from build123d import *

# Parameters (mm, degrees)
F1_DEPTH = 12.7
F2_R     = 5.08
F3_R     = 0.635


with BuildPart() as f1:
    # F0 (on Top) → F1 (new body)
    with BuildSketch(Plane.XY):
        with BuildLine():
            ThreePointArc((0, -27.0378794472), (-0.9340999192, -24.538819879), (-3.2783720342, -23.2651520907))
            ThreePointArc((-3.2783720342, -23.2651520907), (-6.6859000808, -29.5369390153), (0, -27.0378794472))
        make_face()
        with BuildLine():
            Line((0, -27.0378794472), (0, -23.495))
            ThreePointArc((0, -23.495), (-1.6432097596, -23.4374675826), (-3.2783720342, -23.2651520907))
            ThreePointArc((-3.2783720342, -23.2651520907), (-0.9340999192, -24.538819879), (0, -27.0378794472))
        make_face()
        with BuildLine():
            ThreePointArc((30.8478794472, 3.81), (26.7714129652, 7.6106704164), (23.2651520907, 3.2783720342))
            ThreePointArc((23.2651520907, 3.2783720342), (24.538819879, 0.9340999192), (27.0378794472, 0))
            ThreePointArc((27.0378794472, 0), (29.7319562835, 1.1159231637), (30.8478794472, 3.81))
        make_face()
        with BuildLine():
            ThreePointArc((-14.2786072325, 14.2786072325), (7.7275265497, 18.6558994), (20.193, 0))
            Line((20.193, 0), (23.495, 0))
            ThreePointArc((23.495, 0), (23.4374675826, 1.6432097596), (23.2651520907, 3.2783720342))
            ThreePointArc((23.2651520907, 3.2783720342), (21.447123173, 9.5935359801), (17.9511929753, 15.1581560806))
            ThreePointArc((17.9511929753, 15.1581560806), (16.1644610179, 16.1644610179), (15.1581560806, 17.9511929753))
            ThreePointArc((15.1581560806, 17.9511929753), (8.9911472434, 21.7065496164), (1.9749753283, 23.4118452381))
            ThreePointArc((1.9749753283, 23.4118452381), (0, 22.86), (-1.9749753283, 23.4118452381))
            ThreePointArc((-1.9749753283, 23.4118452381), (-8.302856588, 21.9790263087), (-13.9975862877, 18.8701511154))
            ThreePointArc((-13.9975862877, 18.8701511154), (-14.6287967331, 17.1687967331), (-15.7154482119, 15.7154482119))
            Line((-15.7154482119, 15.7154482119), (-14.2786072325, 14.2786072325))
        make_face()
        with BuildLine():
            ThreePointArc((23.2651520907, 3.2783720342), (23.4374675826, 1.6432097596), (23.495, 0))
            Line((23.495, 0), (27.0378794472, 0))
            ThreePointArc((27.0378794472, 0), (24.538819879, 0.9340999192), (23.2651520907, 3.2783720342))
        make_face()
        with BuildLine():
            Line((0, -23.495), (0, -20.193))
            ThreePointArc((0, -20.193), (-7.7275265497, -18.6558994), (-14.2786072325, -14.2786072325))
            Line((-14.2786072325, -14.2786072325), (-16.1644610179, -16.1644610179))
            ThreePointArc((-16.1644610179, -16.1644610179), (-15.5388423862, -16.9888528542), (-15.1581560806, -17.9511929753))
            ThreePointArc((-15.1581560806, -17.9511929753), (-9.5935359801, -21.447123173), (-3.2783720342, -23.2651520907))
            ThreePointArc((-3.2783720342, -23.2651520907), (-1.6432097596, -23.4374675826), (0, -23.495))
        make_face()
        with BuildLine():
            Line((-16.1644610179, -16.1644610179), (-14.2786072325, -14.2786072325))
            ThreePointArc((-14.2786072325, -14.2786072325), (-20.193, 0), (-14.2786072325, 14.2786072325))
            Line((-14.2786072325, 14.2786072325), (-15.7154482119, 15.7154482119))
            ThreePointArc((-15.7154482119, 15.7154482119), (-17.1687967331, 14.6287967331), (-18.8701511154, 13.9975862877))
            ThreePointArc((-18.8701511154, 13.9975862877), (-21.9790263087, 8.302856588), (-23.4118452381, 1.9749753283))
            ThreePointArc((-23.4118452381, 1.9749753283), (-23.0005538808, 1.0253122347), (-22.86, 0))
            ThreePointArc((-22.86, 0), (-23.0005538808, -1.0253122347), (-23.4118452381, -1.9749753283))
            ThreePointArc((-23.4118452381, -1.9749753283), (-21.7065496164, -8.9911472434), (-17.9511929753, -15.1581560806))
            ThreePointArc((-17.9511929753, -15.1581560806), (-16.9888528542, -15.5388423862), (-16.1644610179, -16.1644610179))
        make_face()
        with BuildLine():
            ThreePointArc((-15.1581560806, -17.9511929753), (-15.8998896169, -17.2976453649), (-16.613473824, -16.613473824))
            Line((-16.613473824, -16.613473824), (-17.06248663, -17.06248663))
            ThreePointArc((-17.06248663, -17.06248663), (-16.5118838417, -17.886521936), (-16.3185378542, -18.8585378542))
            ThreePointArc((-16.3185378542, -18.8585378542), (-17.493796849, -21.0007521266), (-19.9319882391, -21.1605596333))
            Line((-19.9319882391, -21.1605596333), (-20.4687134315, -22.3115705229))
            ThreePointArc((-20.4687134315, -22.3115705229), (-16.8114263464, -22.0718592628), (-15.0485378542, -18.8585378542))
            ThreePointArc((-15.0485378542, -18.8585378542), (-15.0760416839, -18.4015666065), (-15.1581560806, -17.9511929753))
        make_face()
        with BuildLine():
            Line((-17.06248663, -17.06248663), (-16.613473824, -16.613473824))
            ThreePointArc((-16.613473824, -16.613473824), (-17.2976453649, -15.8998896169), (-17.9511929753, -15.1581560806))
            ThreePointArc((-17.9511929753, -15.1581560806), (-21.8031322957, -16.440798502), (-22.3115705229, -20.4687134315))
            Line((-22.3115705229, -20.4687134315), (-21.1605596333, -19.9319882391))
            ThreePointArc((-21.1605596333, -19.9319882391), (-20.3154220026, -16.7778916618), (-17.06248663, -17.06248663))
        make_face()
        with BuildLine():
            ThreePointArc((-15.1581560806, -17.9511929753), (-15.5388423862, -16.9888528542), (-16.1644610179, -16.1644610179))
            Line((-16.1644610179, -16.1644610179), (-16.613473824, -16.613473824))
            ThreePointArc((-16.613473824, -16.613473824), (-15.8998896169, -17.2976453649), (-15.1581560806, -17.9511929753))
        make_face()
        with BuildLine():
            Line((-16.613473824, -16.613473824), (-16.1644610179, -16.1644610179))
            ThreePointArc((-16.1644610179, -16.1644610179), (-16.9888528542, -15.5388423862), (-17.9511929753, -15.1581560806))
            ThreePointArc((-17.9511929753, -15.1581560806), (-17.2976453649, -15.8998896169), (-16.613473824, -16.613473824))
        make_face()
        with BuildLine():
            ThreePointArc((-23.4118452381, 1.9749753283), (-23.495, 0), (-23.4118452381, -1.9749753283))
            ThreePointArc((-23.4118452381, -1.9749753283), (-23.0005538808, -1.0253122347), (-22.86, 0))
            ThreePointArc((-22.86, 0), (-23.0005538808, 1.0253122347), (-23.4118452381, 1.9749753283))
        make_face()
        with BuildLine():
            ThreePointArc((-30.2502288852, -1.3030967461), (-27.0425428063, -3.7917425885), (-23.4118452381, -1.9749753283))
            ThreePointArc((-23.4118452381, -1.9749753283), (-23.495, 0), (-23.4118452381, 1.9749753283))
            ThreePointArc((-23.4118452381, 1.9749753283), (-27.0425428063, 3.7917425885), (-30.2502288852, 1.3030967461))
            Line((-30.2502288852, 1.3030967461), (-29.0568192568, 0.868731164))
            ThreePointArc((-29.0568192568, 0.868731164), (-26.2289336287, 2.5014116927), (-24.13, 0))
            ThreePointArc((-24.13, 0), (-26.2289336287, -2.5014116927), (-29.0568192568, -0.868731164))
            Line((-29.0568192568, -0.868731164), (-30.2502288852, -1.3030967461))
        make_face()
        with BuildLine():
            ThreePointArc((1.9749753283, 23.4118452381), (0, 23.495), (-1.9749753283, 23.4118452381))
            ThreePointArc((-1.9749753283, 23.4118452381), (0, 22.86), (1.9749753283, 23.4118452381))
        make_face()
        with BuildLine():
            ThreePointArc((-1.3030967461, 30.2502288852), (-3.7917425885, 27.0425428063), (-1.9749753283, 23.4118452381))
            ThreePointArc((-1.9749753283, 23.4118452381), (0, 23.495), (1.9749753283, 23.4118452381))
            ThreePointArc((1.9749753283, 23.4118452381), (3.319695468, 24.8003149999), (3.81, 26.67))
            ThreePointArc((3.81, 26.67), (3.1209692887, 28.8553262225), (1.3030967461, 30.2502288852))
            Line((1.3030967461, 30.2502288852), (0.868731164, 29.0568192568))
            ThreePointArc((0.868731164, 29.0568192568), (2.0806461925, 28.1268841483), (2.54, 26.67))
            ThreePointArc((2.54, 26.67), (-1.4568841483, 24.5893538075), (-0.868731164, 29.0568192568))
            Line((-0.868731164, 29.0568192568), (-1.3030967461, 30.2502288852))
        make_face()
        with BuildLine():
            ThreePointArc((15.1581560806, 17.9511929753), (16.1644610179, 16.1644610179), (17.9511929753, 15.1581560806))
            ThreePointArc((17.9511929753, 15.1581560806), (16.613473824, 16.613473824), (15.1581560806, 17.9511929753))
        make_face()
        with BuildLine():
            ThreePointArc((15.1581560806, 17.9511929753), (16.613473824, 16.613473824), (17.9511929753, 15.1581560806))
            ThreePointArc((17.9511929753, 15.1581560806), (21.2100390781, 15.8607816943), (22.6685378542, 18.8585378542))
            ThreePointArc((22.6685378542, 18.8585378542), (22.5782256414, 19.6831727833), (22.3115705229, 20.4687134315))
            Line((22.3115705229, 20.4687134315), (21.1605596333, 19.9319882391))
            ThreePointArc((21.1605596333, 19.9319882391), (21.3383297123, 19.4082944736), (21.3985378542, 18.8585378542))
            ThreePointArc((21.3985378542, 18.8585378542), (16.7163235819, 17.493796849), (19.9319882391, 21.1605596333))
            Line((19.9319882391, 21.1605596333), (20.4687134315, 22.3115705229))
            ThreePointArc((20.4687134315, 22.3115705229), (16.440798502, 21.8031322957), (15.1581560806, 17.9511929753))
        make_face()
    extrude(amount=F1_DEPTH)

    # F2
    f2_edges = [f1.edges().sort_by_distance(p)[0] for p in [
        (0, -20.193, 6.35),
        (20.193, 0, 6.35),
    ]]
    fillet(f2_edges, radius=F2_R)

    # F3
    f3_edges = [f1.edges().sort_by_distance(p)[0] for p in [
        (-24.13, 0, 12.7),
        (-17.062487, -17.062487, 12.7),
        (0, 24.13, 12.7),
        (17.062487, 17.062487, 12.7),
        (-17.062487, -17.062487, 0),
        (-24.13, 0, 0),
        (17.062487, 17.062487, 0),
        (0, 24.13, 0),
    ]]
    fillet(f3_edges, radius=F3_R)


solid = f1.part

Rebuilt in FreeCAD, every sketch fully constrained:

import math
import FreeCAD as App
import Part
import Sketcher
from FreeCAD import Vector
Q = App.Units.Quantity


def edges_at(feature, points):
    """Names of the edges that pass closest to the given points."""
    edges = feature.Shape.Edges
    near = lambda p: min(range(len(edges)), key=lambda i: edges[i].distToShape(Part.Vertex(*p))[0])
    return sorted({f"Edge{near(p) + 1}" for p in points})

doc = App.newDocument("Part")
body = doc.addObject("PartDesign::Body", "Body")

# Sketch on XY plane
sketch1 = body.newObject("Sketcher::SketchObject", "Sketch")
sketch1.AttachmentSupport = (doc.getObject("XY_Plane"), [""])
sketch1.MapMode = "FlatFace"
sketch1.addGeometry([
    Part.ArcOfCircle(Part.Circle(Vector(0, 0, 0), Vector(0, 0, 1), 23.495), math.radians(-175.178062), math.radians(-139.821938)),  # 0
    Part.ArcOfCircle(Part.Circle(Vector(-18.858538, -18.858538, 0), Vector(0, 0, 1), 3.81), math.radians(76.222725), math.radians(205)),  # 1
    Part.LineSegment(Vector(-22.311571, -20.468713, 0), Vector(-21.16056, -19.931988, 0)),  # 2
    Part.ArcOfCircle(Part.Circle(Vector(-18.858538, -18.858538, 0), Vector(0, 0, 1), 2.54), math.radians(45), math.radians(205)),  # 3
    Part.ArcOfCircle(Part.Circle(Vector(-18.858538, -18.858538, 0), Vector(0, 0, 1), 2.54), math.radians(0), math.radians(45)),  # 4
    Part.ArcOfCircle(Part.Circle(Vector(-18.858538, -18.858538, 0), Vector(0, 0, 1), 2.54), math.radians(-115), math.radians(0)),  # 5
    Part.LineSegment(Vector(-19.931988, -21.16056, 0), Vector(-20.468713, -22.311571, 0)),  # 6
    Part.ArcOfCircle(Part.Circle(Vector(-18.858538, -18.858538, 0), Vector(0, 0, 1), 3.81), math.radians(-115), math.radians(0)),  # 7
    Part.ArcOfCircle(Part.Circle(Vector(-18.858538, -18.858538, 0), Vector(0, 0, 1), 3.81), math.radians(0), math.radians(13.777275)),  # 8
    Part.ArcOfCircle(Part.Circle(Vector(0, 0, 0), Vector(0, 0, 1), 23.495), math.radians(-130.178062), math.radians(-98.020933)),  # 9
    Part.ArcOfCircle(Part.Circle(Vector(-3.81, -27.037879, 0), Vector(0, 0, 1), 3.81), math.radians(81.979066), math.radians(360)),  # 10
    Part.LineSegment(Vector(0, -27.037879, 0), Vector(0, -20.193, 0)),  # 11
    Part.ArcOfCircle(Part.Circle(Vector(0, 0, 0), Vector(0, 0, 1), 20.193), math.radians(-135), math.radians(-90)),  # 12
    Part.ArcOfCircle(Part.Circle(Vector(0, 0, 0), Vector(0, 0, 1), 20.193), math.radians(135), math.radians(225)),  # 13
    Part.ArcOfCircle(Part.Circle(Vector(0, 0, 0), Vector(0, 0, 1), 20.193), math.radians(0), math.radians(135)),  # 14
    Part.LineSegment(Vector(20.193, 0, 0), Vector(27.037879, 0, 0)),  # 15
    Part.ArcOfCircle(Part.Circle(Vector(27.037879, 3.81, 0), Vector(0, 0, 1), 3.81), math.radians(-90), math.radians(0)),  # 16
    Part.ArcOfCircle(Part.Circle(Vector(27.037879, 3.81, 0), Vector(0, 0, 1), 3.81), math.radians(0), math.radians(188.020934)),  # 17
    Part.ArcOfCircle(Part.Circle(Vector(0, 0, 0), Vector(0, 0, 1), 23.495), math.radians(8.020933), math.radians(40.178062)),  # 18
    Part.ArcOfCircle(Part.Circle(Vector(18.858538, 18.858538, 0), Vector(0, 0, 1), 3.81), math.radians(-103.777275), math.radians(0)),  # 19
    Part.ArcOfCircle(Part.Circle(Vector(18.858538, 18.858538, 0), Vector(0, 0, 1), 3.81), math.radians(0), math.radians(25)),  # 20
    Part.LineSegment(Vector(22.311571, 20.468713, 0), Vector(21.16056, 19.931988, 0)),  # 21
    Part.ArcOfCircle(Part.Circle(Vector(18.858538, 18.858538, 0), Vector(0, 0, 1), 2.54), math.radians(0), math.radians(25)),  # 22
    Part.ArcOfCircle(Part.Circle(Vector(18.858538, 18.858538, 0), Vector(0, 0, 1), 2.54), math.radians(65), math.radians(360)),  # 23
    Part.LineSegment(Vector(19.931988, 21.16056, 0), Vector(20.468713, 22.311571, 0)),  # 24
    Part.ArcOfCircle(Part.Circle(Vector(18.858538, 18.858538, 0), Vector(0, 0, 1), 3.81), math.radians(65), math.radians(193.777275)),  # 25
    Part.ArcOfCircle(Part.Circle(Vector(0, 0, 0), Vector(0, 0, 1), 23.495), math.radians(49.821938), math.radians(85.178062)),  # 26
    Part.ArcOfCircle(Part.Circle(Vector(0, 26.67, 0), Vector(0, 0, 1), 3.81), math.radians(-58.777275), math.radians(0)),  # 27
    Part.ArcOfCircle(Part.Circle(Vector(0, 26.67, 0), Vector(0, 0, 1), 3.81), math.radians(0), math.radians(70)),  # 28
    Part.LineSegment(Vector(1.303097, 30.250229, 0), Vector(0.868731, 29.056819, 0)),  # 29
    Part.ArcOfCircle(Part.Circle(Vector(0, 26.67, 0), Vector(0, 0, 1), 2.54), math.radians(0), math.radians(70)),  # 30
    Part.ArcOfCircle(Part.Circle(Vector(0, 26.67, 0), Vector(0, 0, 1), 2.54), math.radians(110), math.radians(360)),  # 31
    Part.LineSegment(Vector(-0.868731, 29.056819, 0), Vector(-1.303097, 30.250229, 0)),  # 32
    Part.ArcOfCircle(Part.Circle(Vector(0, 26.67, 0), Vector(0, 0, 1), 3.81), math.radians(110), math.radians(238.777275)),  # 33
    Part.ArcOfCircle(Part.Circle(Vector(0, 0, 0), Vector(0, 0, 1), 23.495), math.radians(94.821938), math.radians(126.567452)),  # 34
    Part.ArcOfCircle(Part.Circle(Vector(-20.205576, 20.205576, 0), Vector(0, 0, 1), 6.35), math.radians(-45), math.radians(-12.14012)),  # 35
    Part.ArcOfCircle(Part.Circle(Vector(-20.205576, 20.205576, 0), Vector(0, 0, 1), 6.35), math.radians(-77.85988), math.radians(-45)),  # 36
    Part.ArcOfCircle(Part.Circle(Vector(0, 0, 0), Vector(0, 0, 1), 23.495), math.radians(143.432548), math.radians(175.178062)),  # 37
    Part.ArcOfCircle(Part.Circle(Vector(-26.67, 0, 0), Vector(0, 0, 1), 3.81), math.radians(31.222725), math.radians(160)),  # 38
    Part.LineSegment(Vector(-30.250229, 1.303097, 0), Vector(-29.056819, 0.868731, 0)),  # 39
    Part.ArcOfCircle(Part.Circle(Vector(-26.67, 0, 0), Vector(0, 0, 1), 2.54), math.radians(0), math.radians(160)),  # 40
    Part.ArcOfCircle(Part.Circle(Vector(-26.67, 0, 0), Vector(0, 0, 1), 2.54), math.radians(-160), math.radians(0)),  # 41
    Part.LineSegment(Vector(-29.056819, -0.868731, 0), Vector(-30.250229, -1.303097, 0)),  # 42
    Part.ArcOfCircle(Part.Circle(Vector(-26.67, 0, 0), Vector(0, 0, 1), 3.81), math.radians(-160), math.radians(-31.222725)),  # 43
], False)
sketch1.addConstraint([
    Sketcher.Constraint("Coincident", 0, 2, 1, 1),
    Sketcher.Constraint("Coincident", 1, 2, 2, 1),
    Sketcher.Constraint("Coincident", 2, 2, 3, 2),
    Sketcher.Constraint("Tangent", 3, 1, 4, 2),
    Sketcher.Constraint("Tangent", 4, 1, 5, 2),
    Sketcher.Constraint("Coincident", 5, 1, 6, 1),
    Sketcher.Constraint("Coincident", 6, 2, 7, 1),
    Sketcher.Constraint("Tangent", 7, 2, 8, 1),
    Sketcher.Constraint("Coincident", 8, 2, 9, 1),
    Sketcher.Constraint("Tangent", 9, 2, 10, 1),
    Sketcher.Constraint("Tangent", 10, 2, 11, 1),
    Sketcher.Constraint("Coincident", 11, 2, 12, 2),
    Sketcher.Constraint("Tangent", 12, 1, 13, 2),
    Sketcher.Constraint("Tangent", 13, 1, 14, 2),
    Sketcher.Constraint("Coincident", 14, 1, 15, 1),
    Sketcher.Constraint("Tangent", 15, 2, 16, 1),
    Sketcher.Constraint("Tangent", 16, 2, 17, 1),
    Sketcher.Constraint("Tangent", 17, 2, 18, 1),
    Sketcher.Constraint("Coincident", 18, 2, 19, 1),
    Sketcher.Constraint("Tangent", 19, 2, 20, 1),
    Sketcher.Constraint("Coincident", 20, 2, 21, 1),
    Sketcher.Constraint("Coincident", 21, 2, 22, 2),
    Sketcher.Constraint("Tangent", 22, 1, 23, 2),
    Sketcher.Constraint("Coincident", 23, 1, 24, 1),
    Sketcher.Constraint("Coincident", 24, 2, 25, 1),
    Sketcher.Constraint("Coincident", 25, 2, 26, 1),
    Sketcher.Constraint("Coincident", 26, 2, 27, 1),
    Sketcher.Constraint("Tangent", 27, 2, 28, 1),
    Sketcher.Constraint("Coincident", 28, 2, 29, 1),
    Sketcher.Constraint("Coincident", 29, 2, 30, 2),
    Sketcher.Constraint("Tangent", 30, 1, 31, 2),
    Sketcher.Constraint("Coincident", 31, 1, 32, 1),
    Sketcher.Constraint("Coincident", 32, 2, 33, 1),
    Sketcher.Constraint("Coincident", 33, 2, 34, 1),
    Sketcher.Constraint("Coincident", 34, 2, 35, 2),
    Sketcher.Constraint("Tangent", 35, 1, 36, 2),
    Sketcher.Constraint("Coincident", 36, 1, 37, 1),
    Sketcher.Constraint("Coincident", 37, 2, 38, 1),
    Sketcher.Constraint("Coincident", 38, 2, 39, 1),
    Sketcher.Constraint("Coincident", 39, 2, 40, 2),
    Sketcher.Constraint("Tangent", 40, 1, 41, 2),
    Sketcher.Constraint("Coincident", 41, 1, 42, 1),
    Sketcher.Constraint("Coincident", 42, 2, 43, 1),
    Sketcher.Constraint("Coincident", 43, 2, 0, 1),
    Sketcher.Constraint("Vertical", 11),
    Sketcher.Constraint("Horizontal", 15),
    Sketcher.Constraint("Coincident", 0, 3, -1, 1),
    Sketcher.Constraint("Coincident", 9, 3, -1, 1),
    Sketcher.Constraint("Coincident", 12, 3, -1, 1),
    Sketcher.Constraint("Coincident", 14, 3, -1, 1),
    Sketcher.Constraint("Coincident", 18, 3, -1, 1),
    Sketcher.Constraint("Coincident", 26, 3, -1, 1),
    Sketcher.Constraint("Coincident", 34, 3, -1, 1),
    Sketcher.Constraint("Coincident", 37, 3, -1, 1),
    Sketcher.Constraint("Coincident", 3, 3, 1, 3),
    Sketcher.Constraint("Coincident", 5, 3, 1, 3),
    Sketcher.Constraint("Coincident", 7, 3, 1, 3),
    Sketcher.Constraint("Coincident", 22, 3, 19, 3),
    Sketcher.Constraint("Coincident", 25, 3, 19, 3),
    Sketcher.Constraint("Coincident", 30, 3, 27, 3),
    Sketcher.Constraint("Coincident", 33, 3, 27, 3),
    Sketcher.Constraint("Coincident", 40, 3, 38, 3),
    Sketcher.Constraint("Coincident", 43, 3, 38, 3),
    Sketcher.Constraint("Equal", 1, 7),
    Sketcher.Constraint("Equal", 7, 8),
    Sketcher.Constraint("Equal", 0, 9),
    Sketcher.Constraint("Equal", 8, 10),
    Sketcher.Constraint("Equal", 10, 16),
    Sketcher.Constraint("Equal", 16, 17),
    Sketcher.Constraint("Equal", 9, 18),
    Sketcher.Constraint("Equal", 17, 19),
    Sketcher.Constraint("Equal", 19, 20),
    Sketcher.Constraint("Equal", 5, 22),
    Sketcher.Constraint("Equal", 22, 23),
    Sketcher.Constraint("Equal", 20, 25),
    Sketcher.Constraint("Equal", 18, 26),
    Sketcher.Constraint("Equal", 25, 27),
    Sketcher.Constraint("Equal", 27, 28),
    Sketcher.Constraint("Equal", 23, 30),
    Sketcher.Constraint("Equal", 30, 31),
    Sketcher.Constraint("Equal", 28, 33),
    Sketcher.Constraint("Equal", 26, 34),
    Sketcher.Constraint("Equal", 35, 36),
    Sketcher.Constraint("Equal", 34, 37),
    Sketcher.Constraint("Equal", 33, 38),
    Sketcher.Constraint("Equal", 31, 40),
    Sketcher.Constraint("Equal", 40, 41),
    Sketcher.Constraint("Equal", 38, 43),
    Sketcher.Constraint("Symmetric", 1, 3, 19, 3, -1, 1),
    Sketcher.Constraint("Symmetric", 29, 2, 31, 1, -2),
    Sketcher.Constraint("Symmetric", 39, 2, 41, 1, -1),
    Sketcher.Constraint("PointOnObject", 10, 2, -2),
    Sketcher.Constraint("PointOnObject", 14, 1, -1),
    Sketcher.Constraint("PointOnObject", 40, 1, -1),
    Sketcher.Constraint("Parallel", 2, 21),
    Sketcher.Constraint("Parallel", 6, 24),
    Sketcher.Constraint("Perpendicular", 29, 39),
    Sketcher.Constraint("Perpendicular", 32, 42),
    Sketcher.Constraint("Horizontal", 8, 3, 4, 1),
    Sketcher.Constraint("Horizontal", 4, 1, 7, 2),
    Sketcher.Constraint("Horizontal", 17, 3, 16, 2),
    Sketcher.Constraint("Horizontal", 25, 3, 19, 2),
    Sketcher.Constraint("Horizontal", 19, 2, 22, 1),
    Sketcher.Constraint("Horizontal", 33, 3, 27, 2),
    Sketcher.Constraint("Horizontal", 27, 2, 30, 1),
    Sketcher.Constraint("Horizontal", 28, 2, 32, 2),
    Sketcher.Constraint("Vertical", 12, 1, 13, 1),
    Sketcher.Constraint("Radius", 3, Q("0.1 in")),
    Sketcher.Constraint("Radius", 1, Q("0.15 in")),
    Sketcher.Constraint("Radius", 35, Q("0.25 in")),
    Sketcher.Constraint("Angle", 2, Q("25 deg")),
    Sketcher.Constraint("Angle", 6, Q("-115 deg")),
    Sketcher.Constraint("Angle", 29, Q("-110 deg")),
    Sketcher.Constraint("Radius", 0, Q("0.925 in")),
    Sketcher.Constraint("Radius", 12, Q("0.795 in")),
    Sketcher.Constraint("DistanceY", -1, 1, 27, 3, Q("1.05 in")),
    Sketcher.Constraint("DistanceX", 38, 3, -1, 1, Q("1.05 in")),
    Sketcher.Constraint("DistanceX", 1, 2, -1, 1, 22.311571),
    Sketcher.Constraint("DistanceY", 2, 2, -1, 1, 19.931988),
    Sketcher.Constraint("DistanceX", 5, 1, -1, 1, 19.931988),
    Sketcher.Constraint("DistanceY", 5, 1, -1, 1, 21.16056),
    Sketcher.Constraint("DistanceX", -1, 1, 20, 2, 22.311571),
    Sketcher.Constraint("DistanceX", -1, 1, 23, 1, 19.931988),
    Sketcher.Constraint("DistanceY", -1, 1, 28, 2, 30.250229),
    Sketcher.Constraint("DistanceY", -1, 1, 34, 2, 18.870151),
    Sketcher.Constraint("DistanceX", 35, 1, -1, 1, 15.715448),
    Sketcher.Constraint("DistanceY", -1, 1, 35, 1, 15.715448),
    Sketcher.Constraint("DistanceX", 38, 2, -1, 1, 30.250229),
    Sketcher.Constraint("DistanceX", 3, 1, -1, 1, 17.062487),
    Sketcher.Constraint("DistanceX", 12, 1, -1, 1, 14.278607),
])
pad1 = body.newObject("PartDesign::Pad", "Pad")
pad1.Profile = sketch1
pad1.Length = Q("0.5 in")
doc.recompute()

fillet = body.newObject("PartDesign::Fillet", "Fillet")
fillet.Base = (pad1, edges_at(pad1, [(0, -20.193, 6.35), (20.193, 0, 6.35)]))
fillet.Radius = Q("0.2 in")
doc.recompute()

fillet2 = body.newObject("PartDesign::Fillet", "Fillet001")
fillet2.Base = (fillet, edges_at(fillet, [
    (-26.229, -2.501, 12.7),
    (-16.512, -17.887, 12.7),
    (-1.457, 24.589, 12.7),
    (16.716, 17.494, 12.7),
    (-16.512, -17.887, 0),
    (-26.229, -2.501, 0),
    (16.716, 17.494, 0),
    (-1.457, 24.589, 0),
]))
fillet2.Radius = Q("0.025 in")

doc.recompute()
